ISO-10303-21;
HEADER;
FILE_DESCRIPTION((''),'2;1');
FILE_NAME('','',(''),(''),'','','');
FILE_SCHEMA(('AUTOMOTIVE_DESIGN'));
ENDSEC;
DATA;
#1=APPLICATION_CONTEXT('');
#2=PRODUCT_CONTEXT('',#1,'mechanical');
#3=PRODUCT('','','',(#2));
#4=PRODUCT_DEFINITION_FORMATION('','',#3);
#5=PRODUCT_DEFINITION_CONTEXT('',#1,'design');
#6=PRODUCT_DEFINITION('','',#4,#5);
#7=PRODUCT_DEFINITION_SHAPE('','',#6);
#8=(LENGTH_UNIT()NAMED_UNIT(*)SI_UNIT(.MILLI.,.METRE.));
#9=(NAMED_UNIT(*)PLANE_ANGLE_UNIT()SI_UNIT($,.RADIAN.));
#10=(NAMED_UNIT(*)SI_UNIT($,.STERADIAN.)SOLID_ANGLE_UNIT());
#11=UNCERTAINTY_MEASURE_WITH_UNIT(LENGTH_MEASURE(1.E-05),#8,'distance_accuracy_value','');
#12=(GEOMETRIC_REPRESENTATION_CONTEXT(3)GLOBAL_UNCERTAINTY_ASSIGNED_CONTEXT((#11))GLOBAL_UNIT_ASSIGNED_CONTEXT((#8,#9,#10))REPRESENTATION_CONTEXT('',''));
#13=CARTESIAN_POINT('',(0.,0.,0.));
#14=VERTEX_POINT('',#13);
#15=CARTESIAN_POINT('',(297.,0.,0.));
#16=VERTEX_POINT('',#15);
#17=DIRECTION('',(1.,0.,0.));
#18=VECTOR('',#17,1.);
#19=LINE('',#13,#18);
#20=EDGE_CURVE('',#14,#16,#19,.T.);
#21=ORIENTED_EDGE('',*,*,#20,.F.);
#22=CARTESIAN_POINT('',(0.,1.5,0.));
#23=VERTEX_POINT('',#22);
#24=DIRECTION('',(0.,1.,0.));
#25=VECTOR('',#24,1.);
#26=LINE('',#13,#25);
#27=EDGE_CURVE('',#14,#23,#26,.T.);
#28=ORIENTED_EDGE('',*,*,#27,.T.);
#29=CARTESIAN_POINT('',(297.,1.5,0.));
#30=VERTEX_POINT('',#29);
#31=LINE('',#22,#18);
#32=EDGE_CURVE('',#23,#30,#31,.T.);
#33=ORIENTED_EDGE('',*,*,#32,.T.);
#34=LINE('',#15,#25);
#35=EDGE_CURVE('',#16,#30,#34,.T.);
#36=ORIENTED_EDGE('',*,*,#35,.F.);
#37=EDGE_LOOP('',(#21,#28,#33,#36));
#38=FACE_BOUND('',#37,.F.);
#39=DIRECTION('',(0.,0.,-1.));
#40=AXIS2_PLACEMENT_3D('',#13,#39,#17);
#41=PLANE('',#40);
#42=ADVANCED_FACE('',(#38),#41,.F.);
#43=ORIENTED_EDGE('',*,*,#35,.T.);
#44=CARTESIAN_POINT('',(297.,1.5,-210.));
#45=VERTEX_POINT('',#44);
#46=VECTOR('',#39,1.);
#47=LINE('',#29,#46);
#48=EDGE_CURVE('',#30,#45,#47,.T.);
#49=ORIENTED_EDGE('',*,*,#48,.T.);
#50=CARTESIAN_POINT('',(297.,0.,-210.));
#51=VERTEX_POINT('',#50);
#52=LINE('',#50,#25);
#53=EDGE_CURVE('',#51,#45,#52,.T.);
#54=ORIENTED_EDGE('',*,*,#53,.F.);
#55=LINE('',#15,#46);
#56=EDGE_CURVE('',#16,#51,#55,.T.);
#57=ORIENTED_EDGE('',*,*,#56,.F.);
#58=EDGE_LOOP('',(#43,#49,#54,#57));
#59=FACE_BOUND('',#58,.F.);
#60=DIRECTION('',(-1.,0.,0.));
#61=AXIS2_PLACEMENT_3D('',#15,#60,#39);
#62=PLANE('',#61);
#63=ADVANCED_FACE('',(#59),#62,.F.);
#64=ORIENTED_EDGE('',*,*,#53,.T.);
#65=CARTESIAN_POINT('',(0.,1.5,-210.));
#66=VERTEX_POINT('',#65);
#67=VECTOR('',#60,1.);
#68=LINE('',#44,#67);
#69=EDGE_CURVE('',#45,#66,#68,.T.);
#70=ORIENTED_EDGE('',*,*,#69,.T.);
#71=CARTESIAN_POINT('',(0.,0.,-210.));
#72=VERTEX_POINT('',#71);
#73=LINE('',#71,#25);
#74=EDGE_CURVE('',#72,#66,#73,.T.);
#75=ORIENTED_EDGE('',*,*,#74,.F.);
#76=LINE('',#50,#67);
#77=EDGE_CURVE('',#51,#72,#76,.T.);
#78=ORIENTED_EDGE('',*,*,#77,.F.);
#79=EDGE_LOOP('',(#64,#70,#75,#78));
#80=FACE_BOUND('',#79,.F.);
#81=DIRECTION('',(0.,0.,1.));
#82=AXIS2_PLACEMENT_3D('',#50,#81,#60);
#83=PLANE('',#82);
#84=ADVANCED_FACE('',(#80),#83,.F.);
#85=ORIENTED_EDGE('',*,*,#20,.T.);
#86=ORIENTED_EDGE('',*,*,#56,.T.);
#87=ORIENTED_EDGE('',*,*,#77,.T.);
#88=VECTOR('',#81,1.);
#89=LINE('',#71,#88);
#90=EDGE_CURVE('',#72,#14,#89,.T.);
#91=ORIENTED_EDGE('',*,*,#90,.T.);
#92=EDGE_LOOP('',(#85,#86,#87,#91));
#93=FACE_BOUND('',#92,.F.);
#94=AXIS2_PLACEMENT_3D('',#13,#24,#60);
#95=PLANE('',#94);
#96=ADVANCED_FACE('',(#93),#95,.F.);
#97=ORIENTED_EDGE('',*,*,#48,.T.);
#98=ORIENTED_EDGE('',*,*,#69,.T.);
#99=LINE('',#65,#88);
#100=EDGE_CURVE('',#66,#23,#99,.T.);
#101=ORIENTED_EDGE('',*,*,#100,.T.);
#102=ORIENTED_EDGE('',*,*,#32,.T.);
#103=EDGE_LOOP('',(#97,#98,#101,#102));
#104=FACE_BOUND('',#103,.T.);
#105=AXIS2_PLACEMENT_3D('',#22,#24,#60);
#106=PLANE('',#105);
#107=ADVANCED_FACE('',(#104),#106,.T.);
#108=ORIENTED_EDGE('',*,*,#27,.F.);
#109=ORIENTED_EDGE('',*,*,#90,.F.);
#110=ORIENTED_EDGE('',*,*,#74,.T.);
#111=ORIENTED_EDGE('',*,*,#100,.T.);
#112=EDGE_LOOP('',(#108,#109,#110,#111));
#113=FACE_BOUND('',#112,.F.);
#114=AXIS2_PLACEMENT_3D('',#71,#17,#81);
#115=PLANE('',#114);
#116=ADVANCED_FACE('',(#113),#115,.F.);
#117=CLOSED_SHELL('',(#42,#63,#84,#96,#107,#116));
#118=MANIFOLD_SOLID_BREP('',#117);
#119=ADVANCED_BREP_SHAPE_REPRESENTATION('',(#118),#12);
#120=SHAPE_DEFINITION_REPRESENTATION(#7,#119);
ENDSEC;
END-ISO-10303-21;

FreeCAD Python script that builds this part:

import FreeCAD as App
import Part
import Sketcher


def add_polygon(sketch, points):
    """Adds a closed chain of lines whose ends are joined by coincident constraints."""
    first, n = sketch.GeometryCount, len(points)
    for a, b in zip(points, points[1:] + points[:1]):
        sketch.addGeometry(Part.LineSegment(App.Vector(*a, 0), App.Vector(*b, 0)), False)
    for i in range(n):
        sketch.addConstraint(Sketcher.Constraint("Coincident", first + i, 2, first + (i + 1) % n, 1))

doc = App.newDocument("Part")
body = doc.addObject("PartDesign::Body", "Body")

# Sketch on XZ plane
sketch1 = body.newObject("Sketcher::SketchObject", "Sketch")
sketch1.AttachmentSupport = (doc.getObject("XZ_Plane"), [""])
sketch1.MapMode = "FlatFace"
add_polygon(sketch1, [(0, -210), (0, 0), (297, 0), (297, -210)])  # lines 0-3
sketch1.addConstraint([
    Sketcher.Constraint("Vertical", 0),
    Sketcher.Constraint("Horizontal", 1),
    Sketcher.Constraint("Vertical", 2),
    Sketcher.Constraint("Horizontal", 3),
    Sketcher.Constraint("Coincident", 0, 2, -1, 1),
    Sketcher.Constraint("DistanceX", 1, 1, 1, 2, 297.0),
    Sketcher.Constraint("DistanceY", 0, 1, 0, 2, 210.0),
])
pad1 = body.newObject("PartDesign::Pad", "Pad")
pad1.Profile = sketch1
pad1.Length = 1.5
pad1.Reversed = True

doc.recompute()
